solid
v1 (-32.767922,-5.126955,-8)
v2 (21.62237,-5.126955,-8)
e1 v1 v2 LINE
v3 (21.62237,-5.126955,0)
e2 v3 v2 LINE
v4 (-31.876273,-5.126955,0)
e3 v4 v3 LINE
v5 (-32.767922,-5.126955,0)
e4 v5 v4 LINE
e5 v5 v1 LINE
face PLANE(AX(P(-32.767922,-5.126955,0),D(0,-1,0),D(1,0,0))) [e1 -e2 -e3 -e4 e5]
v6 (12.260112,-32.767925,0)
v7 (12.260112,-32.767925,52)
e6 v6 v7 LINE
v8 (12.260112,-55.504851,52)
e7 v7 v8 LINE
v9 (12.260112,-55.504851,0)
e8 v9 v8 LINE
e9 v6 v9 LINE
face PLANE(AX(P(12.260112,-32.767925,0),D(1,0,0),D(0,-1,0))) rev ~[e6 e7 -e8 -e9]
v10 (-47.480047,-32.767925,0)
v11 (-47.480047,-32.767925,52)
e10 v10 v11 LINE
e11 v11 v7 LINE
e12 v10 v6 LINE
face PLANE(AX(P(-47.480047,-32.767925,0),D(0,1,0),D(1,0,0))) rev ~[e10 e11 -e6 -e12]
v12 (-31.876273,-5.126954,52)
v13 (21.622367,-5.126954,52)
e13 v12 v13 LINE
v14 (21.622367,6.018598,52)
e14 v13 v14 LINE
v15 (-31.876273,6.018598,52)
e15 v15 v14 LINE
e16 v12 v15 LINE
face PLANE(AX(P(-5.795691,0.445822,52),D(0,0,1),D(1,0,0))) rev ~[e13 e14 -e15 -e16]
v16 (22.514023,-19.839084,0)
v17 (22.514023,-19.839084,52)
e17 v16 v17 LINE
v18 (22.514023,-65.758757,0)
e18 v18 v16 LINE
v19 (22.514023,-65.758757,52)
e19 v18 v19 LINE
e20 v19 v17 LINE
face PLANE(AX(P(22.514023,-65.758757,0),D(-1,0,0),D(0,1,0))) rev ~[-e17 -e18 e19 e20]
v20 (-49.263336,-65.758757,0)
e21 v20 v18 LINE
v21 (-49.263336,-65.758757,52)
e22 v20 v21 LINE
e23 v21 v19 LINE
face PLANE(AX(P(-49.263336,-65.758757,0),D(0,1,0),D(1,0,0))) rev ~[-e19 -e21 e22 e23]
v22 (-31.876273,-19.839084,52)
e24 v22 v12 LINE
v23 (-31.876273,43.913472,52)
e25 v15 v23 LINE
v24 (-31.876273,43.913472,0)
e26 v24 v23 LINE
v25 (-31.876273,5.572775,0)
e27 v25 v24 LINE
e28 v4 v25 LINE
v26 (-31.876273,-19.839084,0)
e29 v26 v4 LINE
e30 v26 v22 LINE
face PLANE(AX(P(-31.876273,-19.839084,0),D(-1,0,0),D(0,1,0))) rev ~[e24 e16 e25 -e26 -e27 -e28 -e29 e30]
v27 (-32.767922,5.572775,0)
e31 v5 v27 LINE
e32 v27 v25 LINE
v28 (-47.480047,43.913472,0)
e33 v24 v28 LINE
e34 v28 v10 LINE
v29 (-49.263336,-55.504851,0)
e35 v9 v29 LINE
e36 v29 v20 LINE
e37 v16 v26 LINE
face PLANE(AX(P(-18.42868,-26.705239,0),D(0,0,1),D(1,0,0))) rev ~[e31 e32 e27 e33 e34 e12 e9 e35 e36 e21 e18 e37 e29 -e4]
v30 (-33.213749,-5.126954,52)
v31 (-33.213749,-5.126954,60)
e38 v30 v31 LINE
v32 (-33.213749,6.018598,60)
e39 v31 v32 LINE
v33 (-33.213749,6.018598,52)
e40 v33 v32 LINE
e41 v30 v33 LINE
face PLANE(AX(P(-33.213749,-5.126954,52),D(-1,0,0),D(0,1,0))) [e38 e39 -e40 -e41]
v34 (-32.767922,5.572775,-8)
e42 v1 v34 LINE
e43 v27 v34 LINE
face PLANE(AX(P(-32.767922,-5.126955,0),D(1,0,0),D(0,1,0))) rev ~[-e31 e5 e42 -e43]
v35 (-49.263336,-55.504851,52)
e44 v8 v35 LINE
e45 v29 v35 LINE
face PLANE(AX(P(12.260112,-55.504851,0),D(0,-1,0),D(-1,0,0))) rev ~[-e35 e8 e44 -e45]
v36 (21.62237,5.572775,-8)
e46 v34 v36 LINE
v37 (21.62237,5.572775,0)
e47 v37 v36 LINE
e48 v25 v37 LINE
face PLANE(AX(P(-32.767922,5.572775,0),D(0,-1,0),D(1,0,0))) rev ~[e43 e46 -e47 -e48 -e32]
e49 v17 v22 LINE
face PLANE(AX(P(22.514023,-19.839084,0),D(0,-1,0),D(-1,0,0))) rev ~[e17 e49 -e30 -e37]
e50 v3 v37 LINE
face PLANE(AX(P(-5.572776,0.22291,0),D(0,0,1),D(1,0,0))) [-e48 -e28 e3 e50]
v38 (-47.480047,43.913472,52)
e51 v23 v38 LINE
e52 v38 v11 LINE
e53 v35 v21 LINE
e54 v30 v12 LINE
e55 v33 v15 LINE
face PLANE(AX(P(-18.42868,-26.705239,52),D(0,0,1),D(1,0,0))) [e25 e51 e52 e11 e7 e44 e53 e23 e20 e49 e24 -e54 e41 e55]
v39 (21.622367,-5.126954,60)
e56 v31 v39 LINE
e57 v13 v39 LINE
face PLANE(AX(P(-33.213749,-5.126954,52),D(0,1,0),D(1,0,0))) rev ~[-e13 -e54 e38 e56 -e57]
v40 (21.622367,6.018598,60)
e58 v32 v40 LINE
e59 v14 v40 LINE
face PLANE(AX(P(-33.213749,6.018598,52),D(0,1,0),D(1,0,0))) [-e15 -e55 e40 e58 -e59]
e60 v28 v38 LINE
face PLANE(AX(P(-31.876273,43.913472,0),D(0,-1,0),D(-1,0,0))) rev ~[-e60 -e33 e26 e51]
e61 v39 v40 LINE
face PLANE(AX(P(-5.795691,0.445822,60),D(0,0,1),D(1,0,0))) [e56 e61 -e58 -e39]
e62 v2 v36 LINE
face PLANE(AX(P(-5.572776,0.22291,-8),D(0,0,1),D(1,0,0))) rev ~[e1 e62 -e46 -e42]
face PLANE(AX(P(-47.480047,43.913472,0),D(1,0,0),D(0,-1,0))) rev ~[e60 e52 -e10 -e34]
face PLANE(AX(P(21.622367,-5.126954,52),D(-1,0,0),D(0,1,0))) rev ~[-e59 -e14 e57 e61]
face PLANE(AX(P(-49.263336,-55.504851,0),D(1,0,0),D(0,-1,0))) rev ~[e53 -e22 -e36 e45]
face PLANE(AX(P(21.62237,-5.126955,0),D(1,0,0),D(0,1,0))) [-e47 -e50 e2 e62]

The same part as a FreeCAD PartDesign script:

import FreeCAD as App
import Part
import Sketcher

V = App.Vector
Q = App.Units.Quantity

doc = App.newDocument("Part")
body = doc.addObject("PartDesign::Body", "Body")

# Sketch on XY plane
sketch1 = body.newObject("Sketcher::SketchObject", "Sketch")
sketch1.AttachmentSupport = (doc.getObject("XY_Plane"), [""])
sketch1.MapMode = "FlatFace"
sketch1.addGeometry([
    Part.LineSegment(V(-32, 44, 0), V(-47, 44, 0)),  # 0
    Part.LineSegment(V(-47, 44, 0), V(-47, -33, 0)),  # 1
    Part.LineSegment(V(-47, -33, 0), V(12, -33, 0)),  # 2
    Part.LineSegment(V(12, -33, 0), V(12, -56, 0)),  # 3
    Part.LineSegment(V(12, -56, 0), V(-49, -56, 0)),  # 4
    Part.LineSegment(V(-49, -56, 0), V(-49, -66, 0)),  # 5
    Part.LineSegment(V(-49, -66, 0), V(23, -66, 0)),  # 6
    Part.LineSegment(V(23, -66, 0), V(23, -20, 0)),  # 7
    Part.LineSegment(V(23, -20, 0), V(-32, -20, 0)),  # 8
    Part.LineSegment(V(-32, -20, 0), V(-32, 44, 0)),  # 9
], False)
sketch1.addConstraint([
    Sketcher.Constraint("Coincident", 0, 2, 1, 1),
    Sketcher.Constraint("Coincident", 1, 2, 2, 1),
    Sketcher.Constraint("Coincident", 2, 2, 3, 1),
    Sketcher.Constraint("Coincident", 3, 2, 4, 1),
    Sketcher.Constraint("Coincident", 4, 2, 5, 1),
    Sketcher.Constraint("Coincident", 5, 2, 6, 1),
    Sketcher.Constraint("Coincident", 6, 2, 7, 1),
    Sketcher.Constraint("Coincident", 7, 2, 8, 1),
    Sketcher.Constraint("Coincident", 8, 2, 9, 1),
    Sketcher.Constraint("Coincident", 9, 2, 0, 1),
    Sketcher.Constraint("Horizontal", 0),
    Sketcher.Constraint("Vertical", 1),
    Sketcher.Constraint("Horizontal", 2),
    Sketcher.Constraint("Vertical", 3),
    Sketcher.Constraint("Horizontal", 4),
    Sketcher.Constraint("Vertical", 5),
    Sketcher.Constraint("Horizontal", 6),
    Sketcher.Constraint("Vertical", 7),
    Sketcher.Constraint("Horizontal", 8),
    Sketcher.Constraint("Vertical", 9),
    Sketcher.Constraint("DistanceX", 2, 1, 2, 2, Q("59.740159 mm")),
    Sketcher.Constraint("DistanceX", 4, 2, 4, 1, Q("61.523448 mm")),
    Sketcher.Constraint("DistanceX", 6, 1, 6, 2, Q("71.777359 mm")),
    Sketcher.Constraint("DistanceX", 0, 2, 0, 1, Q("15.603774 mm")),
    Sketcher.Constraint("DistanceY", 1, 2, 1, 1, Q("76.681397 mm")),
    Sketcher.Constraint("DistanceY", 3, 2, 3, 1, Q("22.736926 mm")),
    Sketcher.Constraint("DistanceY", 5, 2, 5, 1, Q("10.253906 mm")),
    Sketcher.Constraint("DistanceY", 7, 1, 7, 2, Q("45.919673 mm")),
    Sketcher.Constraint("DistanceY", 3, 2, -1, 1, Q("55.504851 mm")),
    Sketcher.Constraint("DistanceX", 0, 2, -1, 1, Q("47.480047 mm")),
])
pad1 = body.newObject("PartDesign::Pad", "Pad")
pad1.Profile = sketch1
pad1.Length = 52

# Sketch on XY plane
sketch2 = body.newObject("Sketcher::SketchObject", "Sketch001")
sketch2.AttachmentSupport = (doc.getObject("XY_Plane"), [""])
sketch2.MapMode = "FlatFace"
sketch2.addGeometry([
    Part.LineSegment(V(-33, 6, 0), V(-33, -5, 0)),
    Part.LineSegment(V(-33, -5, 0), V(22, -5, 0)),
    Part.LineSegment(V(22, -5, 0), V(22, 6, 0)),
    Part.LineSegment(V(22, 6, 0), V(-33, 6, 0)),
], False)
sketch2.addConstraint([
    Sketcher.Constraint("Coincident", 0, 2, 1, 1),
    Sketcher.Constraint("Coincident", 1, 2, 2, 1),
    Sketcher.Constraint("Coincident", 2, 2, 3, 1),
    Sketcher.Constraint("Coincident", 3, 2, 0, 1),
    Sketcher.Constraint("Vertical", 0),
    Sketcher.Constraint("Horizontal", 1),
    Sketcher.Constraint("Vertical", 2),
    Sketcher.Constraint("Horizontal", 3),
    Sketcher.Constraint("DistanceY", 0, 2, 0, 1, Q("10.69973 mm")),
    Sketcher.Constraint("DistanceX", 1, 1, 1, 2, Q("54.390293 mm")),
    Sketcher.Constraint("DistanceX", -1, 1, 1, 2, Q("21.62237 mm")),
    Sketcher.Constraint("DistanceY", 0, 2, -1, 1, Q("5.126955 mm")),
])
pad2 = body.newObject("PartDesign::Pad", "Pad001")
pad2.Profile = sketch2
pad2.Length = 8
pad2.Reversed = True

# Sketch on XY plane
sketch3 = body.newObject("Sketcher::SketchObject", "Sketch002")
sketch3.AttachmentSupport = (doc.getObject("XY_Plane"), [""])
sketch3.MapMode = "FlatFace"
sketch3.AttachmentOffset = App.Placement(V(0, 0, 52), App.Rotation())
sketch3.addGeometry([
    Part.LineSegment(V(-33, 6, 0), V(-33, -5, 0)),
    Part.LineSegment(V(-33, -5, 0), V(22, -5, 0)),
    Part.LineSegment(V(22, -5, 0), V(22, 6, 0)),
    Part.LineSegment(V(22, 6, 0), V(-33, 6, 0)),
], False)
sketch3.addConstraint([
    Sketcher.Constraint("Coincident", 0, 2, 1, 1),
    Sketcher.Constraint("Coincident", 1, 2, 2, 1),
    Sketcher.Constraint("Coincident", 2, 2, 3, 1),
    Sketcher.Constraint("Coincident", 3, 2, 0, 1),
    Sketcher.Constraint("Vertical", 0),
    Sketcher.Constraint("Horizontal", 1),
    Sketcher.Constraint("Vertical", 2),
    Sketcher.Constraint("Horizontal", 3),
    Sketcher.Constraint("DistanceY", 0, 2, 0, 1, Q("11.145552 mm")),
    Sketcher.Constraint("DistanceX", 1, 1, 1, 2, Q("54.836117 mm")),
    Sketcher.Constraint("DistanceX", 0, 2, -1, 1, Q("33.213749 mm")),
    Sketcher.Constraint("DistanceY", 0, 2, -1, 1, Q("5.126954 mm")),
])
pad3 = body.newObject("PartDesign::Pad", "Pad002")
pad3.Profile = sketch3
pad3.Length = 8

doc.recompute()
